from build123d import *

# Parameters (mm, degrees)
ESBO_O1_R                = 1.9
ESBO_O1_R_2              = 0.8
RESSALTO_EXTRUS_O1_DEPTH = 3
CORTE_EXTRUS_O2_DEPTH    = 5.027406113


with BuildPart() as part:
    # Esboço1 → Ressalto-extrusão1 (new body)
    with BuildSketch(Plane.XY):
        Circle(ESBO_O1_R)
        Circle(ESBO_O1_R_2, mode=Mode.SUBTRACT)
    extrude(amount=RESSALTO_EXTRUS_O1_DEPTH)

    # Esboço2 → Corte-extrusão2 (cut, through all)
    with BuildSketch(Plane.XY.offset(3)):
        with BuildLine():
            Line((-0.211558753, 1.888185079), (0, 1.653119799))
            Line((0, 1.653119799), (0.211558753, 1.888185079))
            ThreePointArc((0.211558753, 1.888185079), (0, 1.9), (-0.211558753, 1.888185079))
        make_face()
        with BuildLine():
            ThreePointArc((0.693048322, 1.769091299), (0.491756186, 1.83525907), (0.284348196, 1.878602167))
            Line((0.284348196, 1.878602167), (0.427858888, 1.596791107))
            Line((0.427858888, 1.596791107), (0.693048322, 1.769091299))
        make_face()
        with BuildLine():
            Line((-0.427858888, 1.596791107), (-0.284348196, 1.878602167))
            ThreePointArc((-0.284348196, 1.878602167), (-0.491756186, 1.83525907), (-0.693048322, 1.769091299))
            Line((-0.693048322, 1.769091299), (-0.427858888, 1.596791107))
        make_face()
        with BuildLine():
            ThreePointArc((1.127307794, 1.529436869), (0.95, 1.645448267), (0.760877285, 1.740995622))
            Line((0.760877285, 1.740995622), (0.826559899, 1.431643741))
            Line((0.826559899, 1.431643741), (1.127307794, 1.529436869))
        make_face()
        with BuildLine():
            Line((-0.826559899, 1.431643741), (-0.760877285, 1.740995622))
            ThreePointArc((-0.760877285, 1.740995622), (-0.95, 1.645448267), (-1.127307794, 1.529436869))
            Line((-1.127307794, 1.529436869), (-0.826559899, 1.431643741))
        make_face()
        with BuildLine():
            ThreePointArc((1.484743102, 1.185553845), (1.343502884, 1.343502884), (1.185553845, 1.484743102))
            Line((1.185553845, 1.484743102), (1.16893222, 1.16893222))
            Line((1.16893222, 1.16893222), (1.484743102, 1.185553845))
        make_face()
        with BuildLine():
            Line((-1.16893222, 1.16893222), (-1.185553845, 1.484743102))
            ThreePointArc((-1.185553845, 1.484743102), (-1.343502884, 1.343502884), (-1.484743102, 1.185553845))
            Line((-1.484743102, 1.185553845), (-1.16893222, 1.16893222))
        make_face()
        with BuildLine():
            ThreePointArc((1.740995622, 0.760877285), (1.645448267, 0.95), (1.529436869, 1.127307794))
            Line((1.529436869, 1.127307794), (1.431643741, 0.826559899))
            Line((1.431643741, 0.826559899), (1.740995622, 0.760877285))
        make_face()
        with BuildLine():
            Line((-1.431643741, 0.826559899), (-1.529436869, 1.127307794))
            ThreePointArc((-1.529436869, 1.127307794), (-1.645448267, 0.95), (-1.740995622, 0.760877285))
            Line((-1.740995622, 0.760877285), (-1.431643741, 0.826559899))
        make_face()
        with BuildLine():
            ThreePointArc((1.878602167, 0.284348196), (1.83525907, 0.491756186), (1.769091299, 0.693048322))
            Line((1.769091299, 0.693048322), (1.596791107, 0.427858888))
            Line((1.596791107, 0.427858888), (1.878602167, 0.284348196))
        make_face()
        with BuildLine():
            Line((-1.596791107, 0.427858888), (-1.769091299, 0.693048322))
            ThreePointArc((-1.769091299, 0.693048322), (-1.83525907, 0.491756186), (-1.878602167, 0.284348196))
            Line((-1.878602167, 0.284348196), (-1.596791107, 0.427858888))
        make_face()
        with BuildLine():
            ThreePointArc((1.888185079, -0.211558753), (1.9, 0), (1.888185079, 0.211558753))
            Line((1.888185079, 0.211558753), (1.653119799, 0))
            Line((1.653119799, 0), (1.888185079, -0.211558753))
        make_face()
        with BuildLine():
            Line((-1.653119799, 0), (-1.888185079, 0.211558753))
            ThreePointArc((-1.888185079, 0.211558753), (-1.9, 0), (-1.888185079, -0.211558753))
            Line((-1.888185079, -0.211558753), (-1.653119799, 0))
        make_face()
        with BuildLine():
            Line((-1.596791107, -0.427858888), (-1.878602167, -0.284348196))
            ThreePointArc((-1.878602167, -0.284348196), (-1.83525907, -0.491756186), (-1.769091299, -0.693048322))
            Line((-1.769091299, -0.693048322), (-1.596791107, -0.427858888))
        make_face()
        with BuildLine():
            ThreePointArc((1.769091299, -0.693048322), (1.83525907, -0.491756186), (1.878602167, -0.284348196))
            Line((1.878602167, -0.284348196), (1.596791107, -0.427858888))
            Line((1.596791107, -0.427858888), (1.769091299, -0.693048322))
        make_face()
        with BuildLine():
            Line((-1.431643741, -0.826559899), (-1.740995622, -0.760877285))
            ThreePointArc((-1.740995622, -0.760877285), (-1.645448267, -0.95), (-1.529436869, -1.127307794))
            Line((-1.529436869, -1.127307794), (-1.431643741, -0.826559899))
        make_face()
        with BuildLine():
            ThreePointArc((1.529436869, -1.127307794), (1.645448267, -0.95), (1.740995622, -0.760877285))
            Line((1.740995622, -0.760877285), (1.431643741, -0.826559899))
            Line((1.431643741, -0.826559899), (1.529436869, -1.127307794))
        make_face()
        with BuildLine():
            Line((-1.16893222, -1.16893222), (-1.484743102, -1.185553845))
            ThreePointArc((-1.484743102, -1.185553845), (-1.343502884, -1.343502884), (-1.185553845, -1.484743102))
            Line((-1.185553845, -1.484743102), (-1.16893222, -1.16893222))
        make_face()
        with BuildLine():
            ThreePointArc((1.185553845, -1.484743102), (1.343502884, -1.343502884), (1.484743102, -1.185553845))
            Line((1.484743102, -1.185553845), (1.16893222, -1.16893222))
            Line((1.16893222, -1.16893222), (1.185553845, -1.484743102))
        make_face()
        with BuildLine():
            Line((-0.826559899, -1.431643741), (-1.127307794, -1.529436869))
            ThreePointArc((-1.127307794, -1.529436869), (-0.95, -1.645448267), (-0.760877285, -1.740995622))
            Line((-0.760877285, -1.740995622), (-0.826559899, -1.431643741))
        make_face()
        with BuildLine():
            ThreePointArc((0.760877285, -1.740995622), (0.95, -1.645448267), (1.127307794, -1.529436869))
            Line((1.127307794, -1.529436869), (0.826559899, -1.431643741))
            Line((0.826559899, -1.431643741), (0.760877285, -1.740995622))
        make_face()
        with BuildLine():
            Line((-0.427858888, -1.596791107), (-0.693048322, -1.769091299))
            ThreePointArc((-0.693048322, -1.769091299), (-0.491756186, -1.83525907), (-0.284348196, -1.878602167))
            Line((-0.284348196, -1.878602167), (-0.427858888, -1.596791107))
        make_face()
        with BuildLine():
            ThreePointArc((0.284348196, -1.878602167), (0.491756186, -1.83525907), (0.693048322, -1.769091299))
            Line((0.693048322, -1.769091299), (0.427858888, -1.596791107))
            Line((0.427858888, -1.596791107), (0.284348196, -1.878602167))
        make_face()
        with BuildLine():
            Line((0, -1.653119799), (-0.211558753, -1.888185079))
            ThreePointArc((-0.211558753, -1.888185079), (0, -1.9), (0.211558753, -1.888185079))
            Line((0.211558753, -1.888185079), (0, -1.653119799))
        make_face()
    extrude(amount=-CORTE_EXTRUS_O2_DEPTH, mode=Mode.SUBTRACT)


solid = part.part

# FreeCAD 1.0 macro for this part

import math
import FreeCAD as App
import Part
import Sketcher

V = App.Vector

doc = App.newDocument("Part")
body = doc.addObject("PartDesign::Body", "Body")

sketch1 = body.newObject("Sketcher::SketchObject", "Sketch")
sketch1.AttachmentSupport = (doc.getObject("XY_Plane"), [""])
sketch1.MapMode = "FlatFace"
sketch1.addGeometry(Part.Circle(V(0, 0, 0), V(0, 0, 1), 1.9), False)
sketch1.addGeometry(Part.Circle(V(0, 0, 0), V(0, 0, 1), 0.8), False)
sketch1.addConstraint(Sketcher.Constraint("Coincident", 0, 3, -1, 1))
sketch1.addConstraint(Sketcher.Constraint("Coincident", 1, 3, -1, 1))
sketch1.addConstraint(Sketcher.Constraint("Diameter", 0, 3.8))
sketch1.addConstraint(Sketcher.Constraint("Diameter", 1, 1.6))
pad1 = body.newObject("PartDesign::Pad", "Pad")
pad1.Profile = sketch1
pad1.Length = 3

sketch2 = body.newObject("Sketcher::SketchObject", "Sketch001")
sketch2.AttachmentSupport = (doc.getObject("XY_Plane"), [""])
sketch2.MapMode = "FlatFace"
sketch2.AttachmentOffset = App.Placement(V(0, 0, 3), App.Rotation())
sketch2.addGeometry(Part.LineSegment(V(-0.21, 1.89, 0), V(0, 1.65, 0)), False)
sketch2.addGeometry(Part.LineSegment(V(0, 1.65, 0), V(0.21, 1.89, 0)), False)
sketch2.addGeometry(Part.ArcOfCircle(Part.Circle(V(0, 0, 0), V(0, 0, 1), 1.9), math.radians(83.61), math.radians(96.39)), False)
sketch2.addGeometry(Part.ArcOfCircle(Part.Circle(V(0, 0, 0), V(0, 0, 1), 1.9), math.radians(68.61), math.radians(81.39)), False)
sketch2.addGeometry(Part.LineSegment(V(0.28, 1.88, 0), V(0.43, 1.6, 0)), False)
sketch2.addGeometry(Part.LineSegment(V(0.43, 1.6, 0), V(0.69, 1.77, 0)), False)
sketch2.addGeometry(Part.LineSegment(V(-0.43, 1.6, 0), V(-0.28, 1.88, 0)), False)
sketch2.addGeometry(Part.ArcOfCircle(Part.Circle(V(0, 0, 0), V(0, 0, 1), 1.9), math.radians(98.61), math.radians(111.39)), False)
sketch2.addGeometry(Part.LineSegment(V(-0.69, 1.77, 0), V(-0.43, 1.6, 0)), False)
sketch2.addGeometry(Part.ArcOfCircle(Part.Circle(V(0, 0, 0), V(0, 0, 1), 1.9), math.radians(53.61), math.radians(66.39)), False)
sketch2.addGeometry(Part.LineSegment(V(0.76, 1.74, 0), V(0.83, 1.43, 0)), False)
sketch2.addGeometry(Part.LineSegment(V(0.83, 1.43, 0), V(1.13, 1.53, 0)), False)
sketch2.addGeometry(Part.LineSegment(V(-0.83, 1.43, 0), V(-0.76, 1.74, 0)), False)
sketch2.addGeometry(Part.ArcOfCircle(Part.Circle(V(0, 0, 0), V(0, 0, 1), 1.9), math.radians(113.61), math.radians(126.39)), False)
sketch2.addGeometry(Part.LineSegment(V(-1.13, 1.53, 0), V(-0.83, 1.43, 0)), False)
sketch2.addGeometry(Part.ArcOfCircle(Part.Circle(V(0, 0, 0), V(0, 0, 1), 1.9), math.radians(38.61), math.radians(51.39)), False)
sketch2.addGeometry(Part.LineSegment(V(1.19, 1.48, 0), V(1.17, 1.17, 0)), False)
sketch2.addGeometry(Part.LineSegment(V(1.17, 1.17, 0), V(1.48, 1.19, 0)), False)
sketch2.addGeometry(Part.LineSegment(V(-1.17, 1.17, 0), V(-1.19, 1.48, 0)), False)
sketch2.addGeometry(Part.ArcOfCircle(Part.Circle(V(0, 0, 0), V(0, 0, 1), 1.9), math.radians(128.61), math.radians(141.39)), False)
sketch2.addGeometry(Part.LineSegment(V(-1.48, 1.19, 0), V(-1.17, 1.17, 0)), False)
sketch2.addGeometry(Part.ArcOfCircle(Part.Circle(V(0, 0, 0), V(0, 0, 1), 1.9), math.radians(23.61), math.radians(36.39)), False)
sketch2.addGeometry(Part.LineSegment(V(1.53, 1.13, 0), V(1.43, 0.83, 0)), False)
sketch2.addGeometry(Part.LineSegment(V(1.43, 0.83, 0), V(1.74, 0.76, 0)), False)
sketch2.addGeometry(Part.LineSegment(V(-1.43, 0.83, 0), V(-1.53, 1.13, 0)), False)
sketch2.addGeometry(Part.ArcOfCircle(Part.Circle(V(0, 0, 0), V(0, 0, 1), 1.9), math.radians(143.61), math.radians(156.39)), False)
sketch2.addGeometry(Part.LineSegment(V(-1.74, 0.76, 0), V(-1.43, 0.83, 0)), False)
sketch2.addGeometry(Part.ArcOfCircle(Part.Circle(V(0, 0, 0), V(0, 0, 1), 1.9), math.radians(8.61), math.radians(21.39)), False)
sketch2.addGeometry(Part.LineSegment(V(1.77, 0.69, 0), V(1.6, 0.43, 0)), False)
sketch2.addGeometry(Part.LineSegment(V(1.6, 0.43, 0), V(1.88, 0.28, 0)), False)
sketch2.addGeometry(Part.LineSegment(V(-1.6, 0.43, 0), V(-1.77, 0.69, 0)), False)
sketch2.addGeometry(Part.ArcOfCircle(Part.Circle(V(0, 0, 0), V(0, 0, 1), 1.9), math.radians(158.61), math.radians(171.39)), False)
sketch2.addGeometry(Part.LineSegment(V(-1.88, 0.28, 0), V(-1.6, 0.43, 0)), False)
sketch2.addGeometry(Part.ArcOfCircle(Part.Circle(V(0, 0, 0), V(0, 0, 1), 1.9), math.radians(-6.39), math.radians(6.39)), False)
sketch2.addGeometry(Part.LineSegment(V(1.89, 0.21, 0), V(1.65, 0, 0)), False)
sketch2.addGeometry(Part.LineSegment(V(1.65, 0, 0), V(1.89, -0.21, 0)), False)
sketch2.addGeometry(Part.LineSegment(V(-1.65, 0, 0), V(-1.89, 0.21, 0)), False)
sketch2.addGeometry(Part.ArcOfCircle(Part.Circle(V(0, 0, 0), V(0, 0, 1), 1.9), math.radians(173.61), math.radians(186.39)), False)
sketch2.addGeometry(Part.LineSegment(V(-1.89, -0.21, 0), V(-1.65, 0, 0)), False)
sketch2.addGeometry(Part.LineSegment(V(-1.6, -0.43, 0), V(-1.88, -0.28, 0)), False)
sketch2.addGeometry(Part.ArcOfCircle(Part.Circle(V(0, 0, 0), V(0, 0, 1), 1.9), math.radians(-171.39), math.radians(-158.61)), False)
sketch2.addGeometry(Part.LineSegment(V(-1.77, -0.69, 0), V(-1.6, -0.43, 0)), False)
sketch2.addGeometry(Part.ArcOfCircle(Part.Circle(V(0, 0, 0), V(0, 0, 1), 1.9), math.radians(-21.39), math.radians(-8.61)), False)
sketch2.addGeometry(Part.LineSegment(V(1.88, -0.28, 0), V(1.6, -0.43, 0)), False)
sketch2.addGeometry(Part.LineSegment(V(1.6, -0.43, 0), V(1.77, -0.69, 0)), False)
sketch2.addGeometry(Part.LineSegment(V(-1.43, -0.83, 0), V(-1.74, -0.76, 0)), False)
sketch2.addGeometry(Part.ArcOfCircle(Part.Circle(V(0, 0, 0), V(0, 0, 1), 1.9), math.radians(-156.39), math.radians(-143.61)), False)
sketch2.addGeometry(Part.LineSegment(V(-1.53, -1.13, 0), V(-1.43, -0.83, 0)), False)
sketch2.addGeometry(Part.ArcOfCircle(Part.Circle(V(0, 0, 0), V(0, 0, 1), 1.9), math.radians(-36.39), math.radians(-23.61)), False)
sketch2.addGeometry(Part.LineSegment(V(1.74, -0.76, 0), V(1.43, -0.83, 0)), False)
sketch2.addGeometry(Part.LineSegment(V(1.43, -0.83, 0), V(1.53, -1.13, 0)), False)
sketch2.addGeometry(Part.LineSegment(V(-1.17, -1.17, 0), V(-1.48, -1.19, 0)), False)
sketch2.addGeometry(Part.ArcOfCircle(Part.Circle(V(0, 0, 0), V(0, 0, 1), 1.9), math.radians(-141.39), math.radians(-128.61)), False)
sketch2.addGeometry(Part.LineSegment(V(-1.19, -1.48, 0), V(-1.17, -1.17, 0)), False)
sketch2.addGeometry(Part.ArcOfCircle(Part.Circle(V(0, 0, 0), V(0, 0, 1), 1.9), math.radians(-51.39), math.radians(-38.61)), False)
sketch2.addGeometry(Part.LineSegment(V(1.48, -1.19, 0), V(1.17, -1.17, 0)), False)
sketch2.addGeometry(Part.LineSegment(V(1.17, -1.17, 0), V(1.19, -1.48, 0)), False)
sketch2.addGeometry(Part.LineSegment(V(-0.83, -1.43, 0), V(-1.13, -1.53, 0)), False)
sketch2.addGeometry(Part.ArcOfCircle(Part.Circle(V(0, 0, 0), V(0, 0, 1), 1.9), math.radians(-126.39), math.radians(-113.61)), False)
sketch2.addGeometry(Part.LineSegment(V(-0.76, -1.74, 0), V(-0.83, -1.43, 0)), False)
sketch2.addGeometry(Part.ArcOfCircle(Part.Circle(V(0, 0, 0), V(0, 0, 1), 1.9), math.radians(-66.39), math.radians(-53.61)), False)
sketch2.addGeometry(Part.LineSegment(V(1.13, -1.53, 0), V(0.83, -1.43, 0)), False)
sketch2.addGeometry(Part.LineSegment(V(0.83, -1.43, 0), V(0.76, -1.74, 0)), False)
sketch2.addGeometry(Part.LineSegment(V(-0.43, -1.6, 0), V(-0.69, -1.77, 0)), False)
sketch2.addGeometry(Part.ArcOfCircle(Part.Circle(V(0, 0, 0), V(0, 0, 1), 1.9), math.radians(-111.39), math.radians(-98.61)), False)
sketch2.addGeometry(Part.LineSegment(V(-0.28, -1.88, 0), V(-0.43, -1.6, 0)), False)
sketch2.addGeometry(Part.ArcOfCircle(Part.Circle(V(0, 0, 0), V(0, 0, 1), 1.9), math.radians(-81.39), math.radians(-68.61)), False)
sketch2.addGeometry(Part.LineSegment(V(0.69, -1.77, 0), V(0.43, -1.6, 0)), False)
sketch2.addGeometry(Part.LineSegment(V(0.43, -1.6, 0), V(0.28, -1.88, 0)), False)
sketch2.addGeometry(Part.LineSegment(V(0, -1.65, 0), V(-0.21, -1.89, 0)), False)
sketch2.addGeometry(Part.ArcOfCircle(Part.Circle(V(0, 0, 0), V(0, 0, 1), 1.9), math.radians(-96.39), math.radians(-83.61)), False)
sketch2.addGeometry(Part.LineSegment(V(0.21, -1.89, 0), V(0, -1.65, 0)), False)
sketch2.addConstraint(Sketcher.Constraint("Coincident", 0, 2, 1, 1))
sketch2.addConstraint(Sketcher.Constraint("Coincident", 1, 2, 2, 1))
sketch2.addConstraint(Sketcher.Constraint("Coincident", 2, 2, 0, 1))
sketch2.addConstraint(Sketcher.Constraint("Coincident", 3, 2, 4, 1))
sketch2.addConstraint(Sketcher.Constraint("Coincident", 4, 2, 5, 1))
sketch2.addConstraint(Sketcher.Constraint("Coincident", 5, 2, 3, 1))
sketch2.addConstraint(Sketcher.Constraint("Coincident", 6, 2, 7, 1))
sketch2.addConstraint(Sketcher.Constraint("Coincident", 7, 2, 8, 1))
sketch2.addConstraint(Sketcher.Constraint("Coincident", 8, 2, 6, 1))
sketch2.addConstraint(Sketcher.Constraint("Coincident", 9, 2, 10, 1))
sketch2.addConstraint(Sketcher.Constraint("Coincident", 10, 2, 11, 1))
sketch2.addConstraint(Sketcher.Constraint("Coincident", 11, 2, 9, 1))
sketch2.addConstraint(Sketcher.Constraint("Coincident", 12, 2, 13, 1))
sketch2.addConstraint(Sketcher.Constraint("Coincident", 13, 2, 14, 1))
sketch2.addConstraint(Sketcher.Constraint("Coincident", 14, 2, 12, 1))
sketch2.addConstraint(Sketcher.Constraint("Coincident", 15, 2, 16, 1))
sketch2.addConstraint(Sketcher.Constraint("Coincident", 16, 2, 17, 1))
sketch2.addConstraint(Sketcher.Constraint("Coincident", 17, 2, 15, 1))
sketch2.addConstraint(Sketcher.Constraint("Coincident", 18, 2, 19, 1))
sketch2.addConstraint(Sketcher.Constraint("Coincident", 19, 2, 20, 1))
sketch2.addConstraint(Sketcher.Constraint("Coincident", 20, 2, 18, 1))
sketch2.addConstraint(Sketcher.Constraint("Coincident", 21, 2, 22, 1))
sketch2.addConstraint(Sketcher.Constraint("Coincident", 22, 2, 23, 1))
sketch2.addConstraint(Sketcher.Constraint("Coincident", 23, 2, 21, 1))
sketch2.addConstraint(Sketcher.Constraint("Coincident", 24, 2, 25, 1))
sketch2.addConstraint(Sketcher.Constraint("Coincident", 25, 2, 26, 1))
sketch2.addConstraint(Sketcher.Constraint("Coincident", 26, 2, 24, 1))
sketch2.addConstraint(Sketcher.Constraint("Coincident", 27, 2, 28, 1))
sketch2.addConstraint(Sketcher.Constraint("Coincident", 28, 2, 29, 1))
sketch2.addConstraint(Sketcher.Constraint("Coincident", 29, 2, 27, 1))
sketch2.addConstraint(Sketcher.Constraint("Coincident", 30, 2, 31, 1))
sketch2.addConstraint(Sketcher.Constraint("Coincident", 31, 2, 32, 1))
sketch2.addConstraint(Sketcher.Constraint("Coincident", 32, 2, 30, 1))
sketch2.addConstraint(Sketcher.Constraint("Coincident", 33, 2, 34, 1))
sketch2.addConstraint(Sketcher.Constraint("Coincident", 34, 2, 35, 1))
sketch2.addConstraint(Sketcher.Constraint("Coincident", 35, 2, 33, 1))
sketch2.addConstraint(Sketcher.Constraint("Coincident", 36, 2, 37, 1))
sketch2.addConstraint(Sketcher.Constraint("Coincident", 37, 2, 38, 1))
sketch2.addConstraint(Sketcher.Constraint("Coincident", 38, 2, 36, 1))
sketch2.addConstraint(Sketcher.Constraint("Coincident", 39, 2, 40, 1))
sketch2.addConstraint(Sketcher.Constraint("Coincident", 40, 2, 41, 1))
sketch2.addConstraint(Sketcher.Constraint("Coincident", 41, 2, 39, 1))
sketch2.addConstraint(Sketcher.Constraint("Coincident", 42, 2, 43, 1))
sketch2.addConstraint(Sketcher.Constraint("Coincident", 43, 2, 44, 1))
sketch2.addConstraint(Sketcher.Constraint("Coincident", 44, 2, 42, 1))
sketch2.addConstraint(Sketcher.Constraint("Coincident", 45, 2, 46, 1))
sketch2.addConstraint(Sketcher.Constraint("Coincident", 46, 2, 47, 1))
sketch2.addConstraint(Sketcher.Constraint("Coincident", 47, 2, 45, 1))
sketch2.addConstraint(Sketcher.Constraint("Coincident", 48, 2, 49, 1))
sketch2.addConstraint(Sketcher.Constraint("Coincident", 49, 2, 50, 1))
sketch2.addConstraint(Sketcher.Constraint("Coincident", 50, 2, 48, 1))
sketch2.addConstraint(Sketcher.Constraint("Coincident", 51, 2, 52, 1))
sketch2.addConstraint(Sketcher.Constraint("Coincident", 52, 2, 53, 1))
sketch2.addConstraint(Sketcher.Constraint("Coincident", 53, 2, 51, 1))
sketch2.addConstraint(Sketcher.Constraint("Coincident", 54, 2, 55, 1))
sketch2.addConstraint(Sketcher.Constraint("Coincident", 55, 2, 56, 1))
sketch2.addConstraint(Sketcher.Constraint("Coincident", 56, 2, 54, 1))
sketch2.addConstraint(Sketcher.Constraint("Coincident", 57, 2, 58, 1))
sketch2.addConstraint(Sketcher.Constraint("Coincident", 58, 2, 59, 1))
sketch2.addConstraint(Sketcher.Constraint("Coincident", 59, 2, 57, 1))
sketch2.addConstraint(Sketcher.Constraint("Coincident", 60, 2, 61, 1))
sketch2.addConstraint(Sketcher.Constraint("Coincident", 61, 2, 62, 1))
sketch2.addConstraint(Sketcher.Constraint("Coincident", 62, 2, 60, 1))
sketch2.addConstraint(Sketcher.Constraint("Coincident", 63, 2, 64, 1))
sketch2.addConstraint(Sketcher.Constraint("Coincident", 64, 2, 65, 1))
sketch2.addConstraint(Sketcher.Constraint("Coincident", 65, 2, 63, 1))
sketch2.addConstraint(Sketcher.Constraint("Coincident", 66, 2, 67, 1))
sketch2.addConstraint(Sketcher.Constraint("Coincident", 67, 2, 68, 1))
sketch2.addConstraint(Sketcher.Constraint("Coincident", 68, 2, 66, 1))
sketch2.addConstraint(Sketcher.Constraint("Coincident", 69, 2, 70, 1))
sketch2.addConstraint(Sketcher.Constraint("Coincident", 70, 2, 71, 1))
sketch2.addConstraint(Sketcher.Constraint("Coincident", 71, 2, 69, 1))
sketch2.addConstraint(Sketcher.Constraint("Coincident", 2, 3, -1, 1))
sketch2.addConstraint(Sketcher.Constraint("Coincident", 3, 3, -1, 1))
sketch2.addConstraint(Sketcher.Constraint("Coincident", 7, 3, -1, 1))
sketch2.addConstraint(Sketcher.Constraint("Coincident", 9, 3, -1, 1))
sketch2.addConstraint(Sketcher.Constraint("Coincident", 13, 3, -1, 1))
sketch2.addConstraint(Sketcher.Constraint("Coincident", 15, 3, -1, 1))
sketch2.addConstraint(Sketcher.Constraint("Coincident", 19, 3, -1, 1))
sketch2.addConstraint(Sketcher.Constraint("Coincident", 21, 3, -1, 1))
sketch2.addConstraint(Sketcher.Constraint("Coincident", 25, 3, -1, 1))
sketch2.addConstraint(Sketcher.Constraint("Coincident", 27, 3, -1, 1))
sketch2.addConstraint(Sketcher.Constraint("Coincident", 31, 3, -1, 1))
sketch2.addConstraint(Sketcher.Constraint("Coincident", 33, 3, -1, 1))
sketch2.addConstraint(Sketcher.Constraint("Coincident", 37, 3, -1, 1))
sketch2.addConstraint(Sketcher.Constraint("Coincident", 40, 3, -1, 1))
sketch2.addConstraint(Sketcher.Constraint("Coincident", 42, 3, -1, 1))
sketch2.addConstraint(Sketcher.Constraint("Coincident", 46, 3, -1, 1))
sketch2.addConstraint(Sketcher.Constraint("Coincident", 48, 3, -1, 1))
sketch2.addConstraint(Sketcher.Constraint("Coincident", 52, 3, -1, 1))
sketch2.addConstraint(Sketcher.Constraint("Coincident", 54, 3, -1, 1))
sketch2.addConstraint(Sketcher.Constraint("Coincident", 58, 3, -1, 1))
sketch2.addConstraint(Sketcher.Constraint("Coincident", 60, 3, -1, 1))
sketch2.addConstraint(Sketcher.Constraint("Coincident", 64, 3, -1, 1))
sketch2.addConstraint(Sketcher.Constraint("Coincident", 66, 3, -1, 1))
sketch2.addConstraint(Sketcher.Constraint("Coincident", 70, 3, -1, 1))
sketch2.addConstraint(Sketcher.Constraint("Equal", 2, 3))
sketch2.addConstraint(Sketcher.Constraint("Equal", 3, 7))
sketch2.addConstraint(Sketcher.Constraint("Equal", 7, 9))
sketch2.addConstraint(Sketcher.Constraint("Equal", 9, 13))
sketch2.addConstraint(Sketcher.Constraint("Equal", 13, 15))
sketch2.addConstraint(Sketcher.Constraint("Equal", 15, 19))
sketch2.addConstraint(Sketcher.Constraint("Equal", 19, 21))
sketch2.addConstraint(Sketcher.Constraint("Equal", 21, 25))
sketch2.addConstraint(Sketcher.Constraint("Equal", 25, 27))
sketch2.addConstraint(Sketcher.Constraint("Equal", 27, 31))
sketch2.addConstraint(Sketcher.Constraint("Equal", 31, 33))
sketch2.addConstraint(Sketcher.Constraint("Equal", 33, 37))
sketch2.addConstraint(Sketcher.Constraint("Equal", 37, 40))
sketch2.addConstraint(Sketcher.Constraint("Equal", 40, 42))
sketch2.addConstraint(Sketcher.Constraint("Equal", 42, 46))
sketch2.addConstraint(Sketcher.Constraint("Equal", 46, 48))
sketch2.addConstraint(Sketcher.Constraint("Equal", 48, 52))
sketch2.addConstraint(Sketcher.Constraint("Equal", 52, 54))
sketch2.addConstraint(Sketcher.Constraint("Equal", 54, 58))
sketch2.addConstraint(Sketcher.Constraint("Equal", 58, 60))
sketch2.addConstraint(Sketcher.Constraint("Equal", 60, 64))
sketch2.addConstraint(Sketcher.Constraint("Equal", 64, 66))
sketch2.addConstraint(Sketcher.Constraint("Equal", 66, 70))
sketch2.addConstraint(Sketcher.Constraint("Symmetric", 34, 2, 38, 2, -1, 1))
sketch2.addConstraint(Sketcher.Constraint("Symmetric", 28, 2, 41, 2, -1, 1))
sketch2.addConstraint(Sketcher.Constraint("Symmetric", 32, 2, 43, 2, -1, 1))
sketch2.addConstraint(Sketcher.Constraint("Symmetric", 22, 2, 47, 2, -1, 1))
sketch2.addConstraint(Sketcher.Constraint("Symmetric", 26, 2, 49, 2, -1, 1))
sketch2.addConstraint(Sketcher.Constraint("Symmetric", 16, 2, 53, 2, -1, 1))
sketch2.addConstraint(Sketcher.Constraint("Symmetric", 20, 2, 55, 2, -1, 1))
sketch2.addConstraint(Sketcher.Constraint("Symmetric", 10, 2, 59, 2, -1, 1))
sketch2.addConstraint(Sketcher.Constraint("Symmetric", 14, 2, 61, 2, -1, 1))
sketch2.addConstraint(Sketcher.Constraint("Symmetric", 4, 2, 65, 2, -1, 1))
sketch2.addConstraint(Sketcher.Constraint("Symmetric", 8, 2, 67, 2, -1, 1))
sketch2.addConstraint(Sketcher.Constraint("Symmetric", 0, 2, 71, 2, -1, 1))
sketch2.addConstraint(Sketcher.Constraint("Symmetric", 4, 2, 8, 2, -2))
sketch2.addConstraint(Sketcher.Constraint("Symmetric", 10, 2, 14, 2, -2))
sketch2.addConstraint(Sketcher.Constraint("Symmetric", 16, 2, 20, 2, -2))
sketch2.addConstraint(Sketcher.Constraint("Symmetric", 22, 2, 26, 2, -2))
sketch2.addConstraint(Sketcher.Constraint("Symmetric", 28, 2, 32, 2, -2))
sketch2.addConstraint(Sketcher.Constraint("PointOnObject", 0, 2, -2))
sketch2.addConstraint(Sketcher.Constraint("PointOnObject", 34, 2, -1))
sketch2.addConstraint(Sketcher.Constraint("Perpendicular", 17, 18))
sketch2.addConstraint(Sketcher.Constraint("Perpendicular", 16, 20))
sketch2.addConstraint(Sketcher.Constraint("Perpendicular", 14, 22))
sketch2.addConstraint(Sketcher.Constraint("Perpendicular", 12, 23))
sketch2.addConstraint(Sketcher.Constraint("Perpendicular", 11, 24))
sketch2.addConstraint(Sketcher.Constraint("Perpendicular", 10, 26))
sketch2.addConstraint(Sketcher.Constraint("Perpendicular", 8, 28))
sketch2.addConstraint(Sketcher.Constraint("Perpendicular", 6, 29))
sketch2.addConstraint(Sketcher.Constraint("Perpendicular", 5, 30))
sketch2.addConstraint(Sketcher.Constraint("Perpendicular", 4, 32))
sketch2.addConstraint(Sketcher.Constraint("Perpendicular", 0, 34))
sketch2.addConstraint(Sketcher.Constraint("Perpendicular", 1, 35))
sketch2.addConstraint(Sketcher.Constraint("Parallel", 35, 36))
sketch2.addConstraint(Sketcher.Constraint("Parallel", 34, 38))
sketch2.addConstraint(Sketcher.Constraint("Parallel", 29, 39))
sketch2.addConstraint(Sketcher.Constraint("Parallel", 28, 41))
sketch2.addConstraint(Sketcher.Constraint("Parallel", 32, 43))
sketch2.addConstraint(Sketcher.Constraint("Parallel", 30, 44))
sketch2.addConstraint(Sketcher.Constraint("Parallel", 23, 45))
sketch2.addConstraint(Sketcher.Constraint("Parallel", 22, 47))
sketch2.addConstraint(Sketcher.Constraint("Parallel", 26, 49))
sketch2.addConstraint(Sketcher.Constraint("Parallel", 24, 50))
sketch2.addConstraint(Sketcher.Constraint("Perpendicular", 18, 51))
sketch2.addConstraint(Sketcher.Constraint("Perpendicular", 20, 53))
sketch2.addConstraint(Sketcher.Constraint("Perpendicular", 53, 55))
sketch2.addConstraint(Sketcher.Constraint("Perpendicular", 51, 56))
sketch2.addConstraint(Sketcher.Constraint("Perpendicular", 50, 57))
sketch2.addConstraint(Sketcher.Constraint("Perpendicular", 49, 59))
sketch2.addConstraint(Sketcher.Constraint("Perpendicular", 47, 61))
sketch2.addConstraint(Sketcher.Constraint("Perpendicular", 45, 62))
sketch2.addConstraint(Sketcher.Constraint("Perpendicular", 44, 63))
sketch2.addConstraint(Sketcher.Constraint("Perpendicular", 43, 65))
sketch2.addConstraint(Sketcher.Constraint("Perpendicular", 41, 67))
sketch2.addConstraint(Sketcher.Constraint("Perpendicular", 39, 68))
sketch2.addConstraint(Sketcher.Constraint("Perpendicular", 36, 69))
sketch2.addConstraint(Sketcher.Constraint("Perpendicular", 38, 71))
sketch2.addConstraint(Sketcher.Constraint("Horizontal", 1, 2, 2, 2))
sketch2.addConstraint(Sketcher.Constraint("Horizontal", 3, 2, 6, 2))
sketch2.addConstraint(Sketcher.Constraint("Horizontal", 5, 2, 7, 2))
sketch2.addConstraint(Sketcher.Constraint("Horizontal", 9, 2, 12, 2))
sketch2.addConstraint(Sketcher.Constraint("Horizontal", 11, 2, 13, 2))
sketch2.addConstraint(Sketcher.Constraint("Horizontal", 15, 2, 18, 2))
sketch2.addConstraint(Sketcher.Constraint("Equal", 1, 4))
sketch2.addConstraint(Sketcher.Constraint("Equal", 4, 5))
sketch2.addConstraint(Sketcher.Constraint("Equal", 8, 10))
sketch2.addConstraint(Sketcher.Constraint("Equal", 10, 11))
sketch2.addConstraint(Sketcher.Constraint("Equal", 14, 16))
sketch2.addConstraint(Sketcher.Constraint("Equal", 16, 17))
sketch2.addConstraint(Sketcher.Constraint("Equal", 20, 22))
sketch2.addConstraint(Sketcher.Constraint("Equal", 22, 23))
sketch2.addConstraint(Sketcher.Constraint("Equal", 26, 28))
sketch2.addConstraint(Sketcher.Constraint("Equal", 28, 29))
sketch2.addConstraint(Sketcher.Constraint("Equal", 32, 34))
sketch2.addConstraint(Sketcher.Constraint("Radius", 2, 1.9))
sketch2.addConstraint(Sketcher.Constraint("DistanceY", -1, 1, 0, 2, 1.65312))
sketch2.addConstraint(Sketcher.Constraint("DistanceX", -1, 1, 1, 2, 0.211559))
sketch2.addConstraint(Sketcher.Constraint("DistanceX", -1, 1, 3, 2, 0.284348))
sketch2.addConstraint(Sketcher.Constraint("DistanceX", -1, 1, 4, 2, 0.427859))
sketch2.addConstraint(Sketcher.Constraint("DistanceX", -1, 1, 10, 2, 0.82656))
sketch2.addConstraint(Sketcher.Constraint("DistanceX", -1, 1, 9, 2, 0.760877))
sketch2.addConstraint(Sketcher.Constraint("DistanceX", -1, 1, 15, 2, 1.185554))
pocket1 = body.newObject("PartDesign::Pocket", "Pocket")
pocket1.Profile = sketch2
pocket1.Type = "ThroughAll"

doc.recompute()
